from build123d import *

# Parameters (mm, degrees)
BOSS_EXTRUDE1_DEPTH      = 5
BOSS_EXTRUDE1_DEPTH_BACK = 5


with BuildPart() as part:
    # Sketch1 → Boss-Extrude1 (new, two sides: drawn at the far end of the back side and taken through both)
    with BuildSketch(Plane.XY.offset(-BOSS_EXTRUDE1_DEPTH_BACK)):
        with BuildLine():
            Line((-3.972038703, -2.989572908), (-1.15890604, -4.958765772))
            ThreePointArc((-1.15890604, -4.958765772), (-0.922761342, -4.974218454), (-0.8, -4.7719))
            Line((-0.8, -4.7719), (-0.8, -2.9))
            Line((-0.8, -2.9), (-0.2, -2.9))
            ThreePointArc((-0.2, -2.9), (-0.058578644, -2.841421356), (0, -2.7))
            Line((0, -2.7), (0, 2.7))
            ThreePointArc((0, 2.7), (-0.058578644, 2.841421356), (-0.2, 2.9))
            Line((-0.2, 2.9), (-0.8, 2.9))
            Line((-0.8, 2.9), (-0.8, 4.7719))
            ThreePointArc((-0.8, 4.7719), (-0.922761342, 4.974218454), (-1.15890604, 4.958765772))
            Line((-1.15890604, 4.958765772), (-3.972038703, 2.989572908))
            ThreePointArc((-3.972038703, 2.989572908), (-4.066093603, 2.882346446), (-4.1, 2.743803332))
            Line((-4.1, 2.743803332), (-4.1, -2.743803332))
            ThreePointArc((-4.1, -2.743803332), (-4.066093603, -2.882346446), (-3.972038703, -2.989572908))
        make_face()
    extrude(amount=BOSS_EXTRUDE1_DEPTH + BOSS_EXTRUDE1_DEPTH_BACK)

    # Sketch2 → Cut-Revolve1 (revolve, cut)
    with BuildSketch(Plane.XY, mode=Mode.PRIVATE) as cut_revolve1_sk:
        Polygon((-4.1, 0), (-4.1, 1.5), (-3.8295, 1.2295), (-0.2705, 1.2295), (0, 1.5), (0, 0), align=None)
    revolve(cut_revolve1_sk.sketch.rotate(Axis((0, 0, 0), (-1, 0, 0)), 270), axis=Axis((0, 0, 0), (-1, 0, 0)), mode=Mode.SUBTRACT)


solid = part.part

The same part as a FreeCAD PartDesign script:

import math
import FreeCAD as App
import Part
import Sketcher
Q = App.Units.Quantity


def add_polygon(sketch, points):
    """Adds a closed chain of lines whose ends are joined by coincident constraints."""
    first, n = sketch.GeometryCount, len(points)
    for a, b in zip(points, points[1:] + points[:1]):
        sketch.addGeometry(Part.LineSegment(App.Vector(*a, 0), App.Vector(*b, 0)), False)
    for i in range(n):
        sketch.addConstraint(Sketcher.Constraint("Coincident", first + i, 2, first + (i + 1) % n, 1))

doc = App.newDocument("Part")
body = doc.addObject("PartDesign::Body", "Body")

sketch1 = body.newObject("Sketcher::SketchObject", "Sketch")
sketch1.AttachmentSupport = (doc.getObject("XY_Plane"), [""])
sketch1.MapMode = "FlatFace"
sketch1.addGeometry([
    Part.LineSegment(App.Vector(-3.97, -2.99, 0), App.Vector(-1.16, -4.96, 0)),
    Part.ArcOfCircle(Part.Circle(App.Vector(-1.03, -4.77, 0), App.Vector(0, 0, 1), 0.23), math.radians(-125), math.radians(0)),
    Part.LineSegment(App.Vector(-0.8, -4.77, 0), App.Vector(-0.8, -2.9, 0)),
    Part.LineSegment(App.Vector(-0.8, -2.9, 0), App.Vector(-0.2, -2.9, 0)),
    Part.ArcOfCircle(Part.Circle(App.Vector(-0.2, -2.7, 0), App.Vector(0, 0, 1), 0.2), math.radians(-90), math.radians(0)),
    Part.LineSegment(App.Vector(0, -2.7, 0), App.Vector(0, 2.7, 0)),
    Part.ArcOfCircle(Part.Circle(App.Vector(-0.2, 2.7, 0), App.Vector(0, 0, 1), 0.2), math.radians(0), math.radians(90)),
    Part.LineSegment(App.Vector(-0.2, 2.9, 0), App.Vector(-0.8, 2.9, 0)),
    Part.LineSegment(App.Vector(-0.8, 2.9, 0), App.Vector(-0.8, 4.77, 0)),
    Part.ArcOfCircle(Part.Circle(App.Vector(-1.03, 4.77, 0), App.Vector(0, 0, 1), 0.23), math.radians(0), math.radians(125)),
    Part.LineSegment(App.Vector(-1.16, 4.96, 0), App.Vector(-3.97, 2.99, 0)),
    Part.ArcOfCircle(Part.Circle(App.Vector(-3.8, 2.74, 0), App.Vector(0, 0, 1), 0.3), math.radians(125), math.radians(180)),
    Part.LineSegment(App.Vector(-4.1, 2.74, 0), App.Vector(-4.1, -2.74, 0)),
    Part.ArcOfCircle(Part.Circle(App.Vector(-3.8, -2.74, 0), App.Vector(0, 0, 1), 0.3), math.radians(180), math.radians(235)),
], False)
sketch1.addConstraint([
    Sketcher.Constraint("Coincident", 0, 2, 1, 1),
    Sketcher.Constraint("Coincident", 1, 2, 2, 1),
    Sketcher.Constraint("Coincident", 2, 2, 3, 1),
    Sketcher.Constraint("Tangent", 3, 2, 4, 1),
    Sketcher.Constraint("Tangent", 4, 2, 5, 1),
    Sketcher.Constraint("Tangent", 5, 2, 6, 1),
    Sketcher.Constraint("Tangent", 6, 2, 7, 1),
    Sketcher.Constraint("Coincident", 7, 2, 8, 1),
    Sketcher.Constraint("Coincident", 8, 2, 9, 1),
    Sketcher.Constraint("Coincident", 9, 2, 10, 1),
    Sketcher.Constraint("Tangent", 10, 2, 11, 1),
    Sketcher.Constraint("Tangent", 11, 2, 12, 1),
    Sketcher.Constraint("Tangent", 12, 2, 13, 1),
    Sketcher.Constraint("Tangent", 13, 2, 0, 1),
    Sketcher.Constraint("Vertical", 2),
    Sketcher.Constraint("Horizontal", 3),
    Sketcher.Constraint("Vertical", 5),
    Sketcher.Constraint("Horizontal", 7),
    Sketcher.Constraint("Vertical", 8),
    Sketcher.Constraint("Vertical", 12),
    Sketcher.Constraint("Equal", 4, 6),
    Sketcher.Constraint("Equal", 1, 9),
    Sketcher.Constraint("Equal", 11, 13),
    Sketcher.Constraint("Symmetric", 4, 2, 5, 2, -1, 1),
    Sketcher.Constraint("Symmetric", 1, 3, 9, 3, -1),
    Sketcher.Constraint("Horizontal", 9, 3, 8, 2),
    Sketcher.Constraint("Vertical", 0, 2, 9, 2),
    Sketcher.Constraint("Vertical", 10, 2, 13, 2),
    Sketcher.Constraint("Equal", 2, 8),
    Sketcher.Constraint("Radius", 4, Q("0.2 mm")),
    Sketcher.Constraint("Radius", 11, Q("0.3 mm")),
    Sketcher.Constraint("DistanceX", 3, 1, 3, 2, Q("0.6 mm")),
    Sketcher.Constraint("DistanceY", 5, 1, 5, 2, Q("5.4 mm")),
    Sketcher.Constraint("DistanceX", 13, 3, 1, 2, Q("3 mm")),
    Sketcher.Constraint("Radius", 1, Q("0.2281 mm")),
    Sketcher.Constraint("DistanceY", 2, 1, 2, 2, Q("1.8719 mm")),
    Sketcher.Constraint("DistanceY", 1, 3, 11, 3, Q("7.515702 mm")),
    Sketcher.Constraint("DistanceY", 0, 2, 11, 3, Q("7.702569 mm")),
])
pad1 = body.newObject("PartDesign::Pad", "Pad")
pad1.Profile = sketch1
pad1.Type = "TwoLengths"
pad1.Length = 5
pad1.Length2 = 5

sketch2 = body.newObject("Sketcher::SketchObject", "Sketch001")
sketch2.AttachmentSupport = (doc.getObject("XY_Plane"), [""])
sketch2.MapMode = "FlatFace"
add_polygon(sketch2, [(-4.1, 1.5), (-4.1, 0), (0, 0), (0, 1.5), (-0.27, 1.23), (-3.83, 1.23)])
sketch2.addConstraint([
    Sketcher.Constraint("Vertical", 0),
    Sketcher.Constraint("Horizontal", 1),
    Sketcher.Constraint("Vertical", 2),
    Sketcher.Constraint("Horizontal", 4),
    Sketcher.Constraint("Coincident", 1, 2, -1, 1),
    Sketcher.Constraint("Perpendicular", 3, 5),
    Sketcher.Constraint("Horizontal", 2, 2, 5, 2),
    Sketcher.Constraint("Equal", 3, 5),
    Sketcher.Constraint("DistanceX", 1, 1, 1, 2, Q("4.1 mm")),
    Sketcher.Constraint("DistanceY", 0, 2, 0, 1, Q("1.5 mm")),
    Sketcher.Constraint("DistanceX", 4, 2, 4, 1, Q("3.559 mm")),
])
groove = body.newObject("PartDesign::Groove", "Groove")
groove.Profile = sketch2
groove.ReferenceAxis = (sketch2, ["H_Axis"])
groove.Angle = 360

doc.recompute()
